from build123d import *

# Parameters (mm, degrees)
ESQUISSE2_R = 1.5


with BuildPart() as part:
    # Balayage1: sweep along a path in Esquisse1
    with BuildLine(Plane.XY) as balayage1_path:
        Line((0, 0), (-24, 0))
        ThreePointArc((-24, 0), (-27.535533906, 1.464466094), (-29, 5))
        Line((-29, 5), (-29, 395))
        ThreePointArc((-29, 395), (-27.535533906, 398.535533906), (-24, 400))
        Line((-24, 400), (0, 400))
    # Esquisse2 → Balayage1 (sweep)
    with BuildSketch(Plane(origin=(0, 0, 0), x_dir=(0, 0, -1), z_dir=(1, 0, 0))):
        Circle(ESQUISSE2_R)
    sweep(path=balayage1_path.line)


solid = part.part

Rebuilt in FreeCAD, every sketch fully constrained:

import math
import FreeCAD as App
import Part
import Sketcher
from FreeCAD import Vector
Q = App.Units.Quantity

doc = App.newDocument("Part")
body = doc.addObject("PartDesign::Body", "Body")

# Sketch on YZ plane
sketch1 = body.newObject("Sketcher::SketchObject", "Sketch")
sketch1.AttachmentSupport = (doc.getObject("YZ_Plane"), [""])
sketch1.MapMode = "FlatFace"
sketch1.addGeometry(Part.Circle(Vector(0, 0, 0), Vector(0, 0, 1), 1.5), False)
sketch1.addConstraint(Sketcher.Constraint("Coincident", 0, 3, -1, 1))
sketch1.addConstraint(Sketcher.Constraint("Diameter", 0, Q("3 mm")))

# Sketch on XY plane
sketch2 = body.newObject("Sketcher::SketchObject", "Sketch001")
sketch2.AttachmentSupport = (doc.getObject("XY_Plane"), [""])
sketch2.MapMode = "FlatFace"
sketch2.addGeometry(Part.LineSegment(Vector(0, 0, 0), Vector(-24, 0, 0)), False)
sketch2.addGeometry(Part.ArcOfCircle(Part.Circle(Vector(-24, 5, 0), Vector(0, 0, 1), 5), math.radians(180), math.radians(270)), False)
sketch2.addGeometry(Part.LineSegment(Vector(-29, 5, 0), Vector(-29, 395, 0)), False)
sketch2.addGeometry(Part.ArcOfCircle(Part.Circle(Vector(-24, 395, 0), Vector(0, 0, 1), 5), math.radians(90), math.radians(180)), False)
sketch2.addGeometry(Part.LineSegment(Vector(-24, 400, 0), Vector(0, 400, 0)), False)
sketch2.addConstraint(Sketcher.Constraint("Tangent", 0, 2, 1, 2))
sketch2.addConstraint(Sketcher.Constraint("Tangent", 1, 1, 2, 1))
sketch2.addConstraint(Sketcher.Constraint("Tangent", 2, 2, 3, 2))
sketch2.addConstraint(Sketcher.Constraint("Tangent", 3, 1, 4, 1))
sketch2.addConstraint(Sketcher.Constraint("Horizontal", 0))
sketch2.addConstraint(Sketcher.Constraint("Vertical", 2))
sketch2.addConstraint(Sketcher.Constraint("Horizontal", 4))
sketch2.addConstraint(Sketcher.Constraint("Coincident", 0, 1, -1, 1))
sketch2.addConstraint(Sketcher.Constraint("Equal", 1, 3))
sketch2.addConstraint(Sketcher.Constraint("PointOnObject", 4, 2, -2))
sketch2.addConstraint(Sketcher.Constraint("Radius", 1, Q("5 mm")))
sketch2.addConstraint(Sketcher.Constraint("DistanceX", 0, 2, 0, 1, Q("24 mm")))
sketch2.addConstraint(Sketcher.Constraint("DistanceY", 2, 1, 2, 2, Q("390 mm")))
doc.recompute()

additivepipe = body.newObject("PartDesign::AdditivePipe", "AdditivePipe")
additivepipe.Profile = sketch1
additivepipe.Spine = (sketch2, ["Edge1", "Edge2", "Edge3", "Edge4", "Edge5"])

doc.recompute()
